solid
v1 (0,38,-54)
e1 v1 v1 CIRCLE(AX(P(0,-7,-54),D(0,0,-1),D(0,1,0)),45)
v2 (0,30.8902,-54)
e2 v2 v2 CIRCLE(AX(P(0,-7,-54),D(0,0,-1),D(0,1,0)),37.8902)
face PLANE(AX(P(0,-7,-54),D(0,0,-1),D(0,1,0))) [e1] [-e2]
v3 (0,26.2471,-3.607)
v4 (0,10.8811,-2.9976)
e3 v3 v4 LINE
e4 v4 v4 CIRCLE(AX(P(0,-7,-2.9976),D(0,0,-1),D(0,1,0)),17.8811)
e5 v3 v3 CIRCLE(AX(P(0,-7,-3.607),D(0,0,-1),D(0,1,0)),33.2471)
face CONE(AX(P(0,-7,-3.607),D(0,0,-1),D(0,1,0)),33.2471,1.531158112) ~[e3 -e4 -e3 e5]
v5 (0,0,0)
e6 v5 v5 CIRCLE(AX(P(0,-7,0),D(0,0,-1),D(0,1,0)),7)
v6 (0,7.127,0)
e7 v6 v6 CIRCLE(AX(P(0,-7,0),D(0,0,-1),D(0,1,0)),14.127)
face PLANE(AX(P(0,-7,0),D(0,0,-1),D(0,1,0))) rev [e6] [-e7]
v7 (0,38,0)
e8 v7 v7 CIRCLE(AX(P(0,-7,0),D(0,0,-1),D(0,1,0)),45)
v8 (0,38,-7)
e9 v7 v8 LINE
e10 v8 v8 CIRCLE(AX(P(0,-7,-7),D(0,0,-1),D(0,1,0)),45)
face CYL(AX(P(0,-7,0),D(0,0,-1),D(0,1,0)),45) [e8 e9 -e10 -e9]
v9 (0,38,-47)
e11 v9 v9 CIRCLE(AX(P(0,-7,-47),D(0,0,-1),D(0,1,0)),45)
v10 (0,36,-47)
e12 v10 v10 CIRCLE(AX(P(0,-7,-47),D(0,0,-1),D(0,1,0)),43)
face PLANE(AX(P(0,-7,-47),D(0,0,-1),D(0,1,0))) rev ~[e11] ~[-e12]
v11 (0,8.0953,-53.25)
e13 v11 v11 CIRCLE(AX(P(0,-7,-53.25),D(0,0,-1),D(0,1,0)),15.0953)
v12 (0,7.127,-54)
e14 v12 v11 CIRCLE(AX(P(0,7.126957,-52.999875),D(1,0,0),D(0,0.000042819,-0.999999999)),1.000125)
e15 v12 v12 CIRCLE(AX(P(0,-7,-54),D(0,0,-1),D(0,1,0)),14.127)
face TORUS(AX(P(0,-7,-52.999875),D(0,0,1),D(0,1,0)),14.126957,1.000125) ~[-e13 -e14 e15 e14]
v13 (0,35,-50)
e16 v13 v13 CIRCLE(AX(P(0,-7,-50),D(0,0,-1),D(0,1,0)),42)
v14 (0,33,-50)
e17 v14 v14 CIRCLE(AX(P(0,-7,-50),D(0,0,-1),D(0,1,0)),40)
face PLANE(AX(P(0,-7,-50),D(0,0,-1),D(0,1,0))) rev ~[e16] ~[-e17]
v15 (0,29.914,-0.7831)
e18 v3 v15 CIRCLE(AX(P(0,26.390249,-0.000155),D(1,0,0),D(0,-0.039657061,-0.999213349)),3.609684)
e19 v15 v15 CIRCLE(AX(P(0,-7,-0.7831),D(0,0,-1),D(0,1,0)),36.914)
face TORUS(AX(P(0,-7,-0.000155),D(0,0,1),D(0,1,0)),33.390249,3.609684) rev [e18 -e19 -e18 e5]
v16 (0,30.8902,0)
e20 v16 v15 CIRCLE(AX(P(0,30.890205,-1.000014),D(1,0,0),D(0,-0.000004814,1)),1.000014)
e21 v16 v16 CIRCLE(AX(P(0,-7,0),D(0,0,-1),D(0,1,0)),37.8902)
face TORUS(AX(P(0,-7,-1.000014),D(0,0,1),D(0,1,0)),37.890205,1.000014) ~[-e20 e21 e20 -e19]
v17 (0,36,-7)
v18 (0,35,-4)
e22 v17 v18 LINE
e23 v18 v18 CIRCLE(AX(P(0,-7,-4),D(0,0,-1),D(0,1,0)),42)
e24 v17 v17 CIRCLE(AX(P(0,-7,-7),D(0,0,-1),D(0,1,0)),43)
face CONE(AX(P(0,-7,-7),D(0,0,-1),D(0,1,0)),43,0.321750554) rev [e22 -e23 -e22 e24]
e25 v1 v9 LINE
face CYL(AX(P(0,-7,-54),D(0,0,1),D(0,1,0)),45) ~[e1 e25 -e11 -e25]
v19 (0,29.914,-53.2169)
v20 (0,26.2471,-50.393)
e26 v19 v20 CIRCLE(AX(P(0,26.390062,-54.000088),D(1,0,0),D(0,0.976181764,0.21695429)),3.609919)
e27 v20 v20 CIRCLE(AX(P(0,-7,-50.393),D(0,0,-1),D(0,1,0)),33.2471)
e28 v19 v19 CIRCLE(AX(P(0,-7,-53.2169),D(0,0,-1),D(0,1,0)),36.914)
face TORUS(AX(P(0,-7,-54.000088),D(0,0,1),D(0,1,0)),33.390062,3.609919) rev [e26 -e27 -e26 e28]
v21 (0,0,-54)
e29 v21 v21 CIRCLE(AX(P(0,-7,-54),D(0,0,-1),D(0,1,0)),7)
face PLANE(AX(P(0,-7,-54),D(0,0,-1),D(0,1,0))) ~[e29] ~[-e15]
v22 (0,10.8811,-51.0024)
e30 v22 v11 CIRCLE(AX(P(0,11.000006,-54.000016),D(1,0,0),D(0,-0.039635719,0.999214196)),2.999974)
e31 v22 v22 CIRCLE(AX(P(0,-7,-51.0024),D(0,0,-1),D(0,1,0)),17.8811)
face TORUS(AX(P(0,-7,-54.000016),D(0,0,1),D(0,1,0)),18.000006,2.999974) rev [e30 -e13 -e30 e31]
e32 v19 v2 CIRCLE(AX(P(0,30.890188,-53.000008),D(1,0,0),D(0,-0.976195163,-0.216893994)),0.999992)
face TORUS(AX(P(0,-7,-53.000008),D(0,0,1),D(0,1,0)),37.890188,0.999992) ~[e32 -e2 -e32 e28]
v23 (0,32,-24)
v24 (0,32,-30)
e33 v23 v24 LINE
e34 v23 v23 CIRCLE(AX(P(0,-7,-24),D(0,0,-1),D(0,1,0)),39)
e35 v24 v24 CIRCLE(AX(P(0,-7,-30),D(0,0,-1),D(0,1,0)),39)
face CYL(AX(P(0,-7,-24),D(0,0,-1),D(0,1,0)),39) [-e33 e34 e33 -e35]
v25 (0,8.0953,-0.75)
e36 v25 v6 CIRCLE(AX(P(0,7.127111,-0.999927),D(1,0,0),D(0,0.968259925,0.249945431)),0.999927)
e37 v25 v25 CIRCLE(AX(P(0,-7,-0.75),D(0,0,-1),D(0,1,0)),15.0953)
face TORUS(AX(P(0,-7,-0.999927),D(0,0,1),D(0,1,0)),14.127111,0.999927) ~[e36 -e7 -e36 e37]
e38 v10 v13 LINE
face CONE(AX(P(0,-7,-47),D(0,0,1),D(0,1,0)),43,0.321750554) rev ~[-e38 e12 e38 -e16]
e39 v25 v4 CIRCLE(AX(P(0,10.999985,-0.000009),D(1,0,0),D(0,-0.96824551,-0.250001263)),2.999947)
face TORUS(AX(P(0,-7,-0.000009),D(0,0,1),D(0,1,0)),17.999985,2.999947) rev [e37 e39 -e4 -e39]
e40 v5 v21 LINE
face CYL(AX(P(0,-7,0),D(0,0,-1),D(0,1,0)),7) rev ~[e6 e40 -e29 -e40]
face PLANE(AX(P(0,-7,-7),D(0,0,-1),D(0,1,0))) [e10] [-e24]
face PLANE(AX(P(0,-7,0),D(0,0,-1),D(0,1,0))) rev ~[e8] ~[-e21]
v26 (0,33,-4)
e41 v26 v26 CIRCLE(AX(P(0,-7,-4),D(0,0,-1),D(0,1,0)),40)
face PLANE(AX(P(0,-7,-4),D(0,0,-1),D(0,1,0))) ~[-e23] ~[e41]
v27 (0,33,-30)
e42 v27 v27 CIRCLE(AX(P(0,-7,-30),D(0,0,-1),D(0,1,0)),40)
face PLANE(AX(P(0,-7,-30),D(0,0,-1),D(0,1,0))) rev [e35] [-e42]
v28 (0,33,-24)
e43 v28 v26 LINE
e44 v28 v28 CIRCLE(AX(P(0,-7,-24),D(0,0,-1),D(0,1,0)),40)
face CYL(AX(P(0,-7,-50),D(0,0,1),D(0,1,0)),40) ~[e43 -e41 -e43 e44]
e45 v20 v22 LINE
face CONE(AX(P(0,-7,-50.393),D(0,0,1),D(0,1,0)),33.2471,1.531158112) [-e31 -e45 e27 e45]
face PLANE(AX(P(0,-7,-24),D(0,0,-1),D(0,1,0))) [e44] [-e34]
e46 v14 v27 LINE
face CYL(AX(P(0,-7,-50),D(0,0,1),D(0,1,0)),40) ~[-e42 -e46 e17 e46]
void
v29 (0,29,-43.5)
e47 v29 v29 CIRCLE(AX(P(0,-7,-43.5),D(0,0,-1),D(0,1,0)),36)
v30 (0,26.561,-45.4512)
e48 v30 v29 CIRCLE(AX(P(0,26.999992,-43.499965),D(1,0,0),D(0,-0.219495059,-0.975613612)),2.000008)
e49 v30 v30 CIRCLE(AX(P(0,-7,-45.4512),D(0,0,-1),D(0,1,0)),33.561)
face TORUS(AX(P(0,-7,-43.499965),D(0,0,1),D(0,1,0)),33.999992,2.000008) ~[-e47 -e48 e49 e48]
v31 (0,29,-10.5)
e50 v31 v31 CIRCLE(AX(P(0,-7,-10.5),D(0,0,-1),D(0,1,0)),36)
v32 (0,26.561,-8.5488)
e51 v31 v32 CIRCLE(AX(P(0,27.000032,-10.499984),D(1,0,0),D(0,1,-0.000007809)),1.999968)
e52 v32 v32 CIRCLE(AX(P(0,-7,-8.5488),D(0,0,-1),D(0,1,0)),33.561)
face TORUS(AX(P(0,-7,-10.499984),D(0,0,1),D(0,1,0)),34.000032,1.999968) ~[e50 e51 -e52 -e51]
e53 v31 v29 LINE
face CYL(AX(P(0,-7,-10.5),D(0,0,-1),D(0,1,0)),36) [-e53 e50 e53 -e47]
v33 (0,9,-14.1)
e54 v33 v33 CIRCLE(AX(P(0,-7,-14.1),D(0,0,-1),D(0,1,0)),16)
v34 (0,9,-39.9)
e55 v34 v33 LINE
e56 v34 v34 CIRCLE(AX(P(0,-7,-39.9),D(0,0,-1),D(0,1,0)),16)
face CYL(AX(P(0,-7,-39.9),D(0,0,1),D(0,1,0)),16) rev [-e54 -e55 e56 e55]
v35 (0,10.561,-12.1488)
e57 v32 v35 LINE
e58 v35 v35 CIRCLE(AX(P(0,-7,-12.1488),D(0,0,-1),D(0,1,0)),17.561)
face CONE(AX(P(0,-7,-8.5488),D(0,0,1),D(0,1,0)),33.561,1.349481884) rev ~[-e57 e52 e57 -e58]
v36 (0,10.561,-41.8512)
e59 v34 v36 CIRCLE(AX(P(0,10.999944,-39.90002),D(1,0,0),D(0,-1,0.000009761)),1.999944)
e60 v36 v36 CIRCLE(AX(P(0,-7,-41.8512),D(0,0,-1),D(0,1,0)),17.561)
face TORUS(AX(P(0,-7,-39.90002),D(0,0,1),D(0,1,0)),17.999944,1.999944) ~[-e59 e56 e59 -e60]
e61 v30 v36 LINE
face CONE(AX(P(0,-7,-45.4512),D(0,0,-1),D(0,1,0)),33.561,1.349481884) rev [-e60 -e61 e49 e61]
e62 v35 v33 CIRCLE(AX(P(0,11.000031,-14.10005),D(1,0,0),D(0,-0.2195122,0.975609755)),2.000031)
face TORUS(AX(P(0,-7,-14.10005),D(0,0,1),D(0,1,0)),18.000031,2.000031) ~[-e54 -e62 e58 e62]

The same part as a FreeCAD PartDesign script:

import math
import FreeCAD as App
import Part
import Sketcher
from FreeCAD import Vector
Q = App.Units.Quantity

doc = App.newDocument("Part")
body = doc.addObject("PartDesign::Body", "Body")

# Sketch on YZ plane
sketch1 = body.newObject("Sketcher::SketchObject", "Sketch")
sketch1.AttachmentSupport = (doc.getObject("YZ_Plane"), [""])
sketch1.MapMode = "FlatFace"
sketch1.addGeometry(Part.LineSegment(Vector(7.1, 0, 0), Vector(0, 0, 0)), False)
sketch1.addGeometry(Part.LineSegment(Vector(0, 0, 0), Vector(0, -54, 0)), False)
sketch1.addGeometry(Part.LineSegment(Vector(0, -54, 0), Vector(7.1, -54, 0)), False)
sketch1.addGeometry(Part.ArcOfCircle(Part.Circle(Vector(7.1, -53, 0), Vector(0, 0, 1), 1), math.radians(-90), math.radians(-14)), False)
sketch1.addGeometry(Part.ArcOfCircle(Part.Circle(Vector(11, -54, 0), Vector(0, 0, 1), 3), math.radians(92), math.radians(166)), False)
sketch1.addGeometry(Part.LineSegment(Vector(10.9, -51, 0), Vector(26.2, -50.4, 0)), False)
sketch1.addGeometry(Part.ArcOfCircle(Part.Circle(Vector(26.4, -54, 0), Vector(0, 0, 1), 3.6), math.radians(13), math.radians(92)), False)
sketch1.addGeometry(Part.ArcOfCircle(Part.Circle(Vector(30.9, -53, 0), Vector(0, 0, 1), 1), math.radians(-167), math.radians(-90)), False)
sketch1.addGeometry(Part.LineSegment(Vector(30.9, -54, 0), Vector(38, -54, 0)), False)
sketch1.addGeometry(Part.LineSegment(Vector(38, -54, 0), Vector(38, -47, 0)), False)
sketch1.addGeometry(Part.LineSegment(Vector(38, -47, 0), Vector(36, -47, 0)), False)
sketch1.addGeometry(Part.LineSegment(Vector(36, -47, 0), Vector(35, -50, 0)), False)
sketch1.addGeometry(Part.LineSegment(Vector(35, -50, 0), Vector(33, -50, 0)), False)
sketch1.addGeometry(Part.LineSegment(Vector(33, -50, 0), Vector(33, -30, 0)), False)
sketch1.addGeometry(Part.LineSegment(Vector(33, -30, 0), Vector(32, -30, 0)), False)
sketch1.addGeometry(Part.LineSegment(Vector(32, -30, 0), Vector(32, -24, 0)), False)
sketch1.addGeometry(Part.LineSegment(Vector(32, -24, 0), Vector(33, -24, 0)), False)
sketch1.addGeometry(Part.LineSegment(Vector(33, -24, 0), Vector(33, -4, 0)), False)
sketch1.addGeometry(Part.LineSegment(Vector(33, -4, 0), Vector(35, -4, 0)), False)
sketch1.addGeometry(Part.LineSegment(Vector(35, -4, 0), Vector(36, -7, 0)), False)
sketch1.addGeometry(Part.LineSegment(Vector(36, -7, 0), Vector(38, -7, 0)), False)
sketch1.addGeometry(Part.LineSegment(Vector(38, -7, 0), Vector(38, 0, 0)), False)
sketch1.addGeometry(Part.LineSegment(Vector(38, 0, 0), Vector(30.9, 0, 0)), False)
sketch1.addGeometry(Part.ArcOfCircle(Part.Circle(Vector(30.9, -1, 0), Vector(0, 0, 1), 1), math.radians(90), math.radians(167)), False)
sketch1.addGeometry(Part.ArcOfCircle(Part.Circle(Vector(26.4, 0, 0), Vector(0, 0, 1), 3.6), math.radians(-92), math.radians(-13)), False)
sketch1.addGeometry(Part.LineSegment(Vector(26.2, -3.6, 0), Vector(10.9, -3, 0)), False)
sketch1.addGeometry(Part.ArcOfCircle(Part.Circle(Vector(11, 0, 0), Vector(0, 0, 1), 3), math.radians(-166), math.radians(-92)), False)
sketch1.addGeometry(Part.ArcOfCircle(Part.Circle(Vector(7.1, -1, 0), Vector(0, 0, 1), 1), math.radians(14), math.radians(90)), False)
sketch1.addGeometry(Part.ArcOfCircle(Part.Circle(Vector(27, -10.5, 0), Vector(0, 0, 1), 2), math.radians(0), math.radians(103)), False)
sketch1.addGeometry(Part.LineSegment(Vector(29, -10.5, 0), Vector(29, -43.5, 0)), False)
sketch1.addGeometry(Part.ArcOfCircle(Part.Circle(Vector(27, -43.5, 0), Vector(0, 0, 1), 2), math.radians(-103), math.radians(0)), False)
sketch1.addGeometry(Part.LineSegment(Vector(26.6, -45.5, 0), Vector(10.6, -41.9, 0)), False)
sketch1.addGeometry(Part.ArcOfCircle(Part.Circle(Vector(11, -39.9, 0), Vector(0, 0, 1), 2), math.radians(180), math.radians(257)), False)
sketch1.addGeometry(Part.LineSegment(Vector(9, -39.9, 0), Vector(9, -14.1, 0)), False)
sketch1.addGeometry(Part.ArcOfCircle(Part.Circle(Vector(11, -14.1, 0), Vector(0, 0, 1), 2), math.radians(103), math.radians(180)), False)
sketch1.addGeometry(Part.LineSegment(Vector(10.6, -12.1, 0), Vector(26.6, -8.5, 0)), False)
sketch1.addGeometry(Part.LineSegment(Vector(-7, 0, 0), Vector(-7, -54, 0)), True)  # axis
sketch1.addConstraint(Sketcher.Constraint("Coincident", 0, 2, 1, 1))
sketch1.addConstraint(Sketcher.Constraint("Coincident", 1, 2, 2, 1))
sketch1.addConstraint(Sketcher.Constraint("Tangent", 2, 2, 3, 1))
sketch1.addConstraint(Sketcher.Constraint("Tangent", 3, 2, 4, 2))
sketch1.addConstraint(Sketcher.Constraint("Tangent", 4, 1, 5, 1))
sketch1.addConstraint(Sketcher.Constraint("Tangent", 5, 2, 6, 2))
sketch1.addConstraint(Sketcher.Constraint("Tangent", 6, 1, 7, 1))
sketch1.addConstraint(Sketcher.Constraint("Tangent", 7, 2, 8, 1))
sketch1.addConstraint(Sketcher.Constraint("Coincident", 8, 2, 9, 1))
sketch1.addConstraint(Sketcher.Constraint("Coincident", 9, 2, 10, 1))
sketch1.addConstraint(Sketcher.Constraint("Coincident", 10, 2, 11, 1))
sketch1.addConstraint(Sketcher.Constraint("Coincident", 11, 2, 12, 1))
sketch1.addConstraint(Sketcher.Constraint("Coincident", 12, 2, 13, 1))
sketch1.addConstraint(Sketcher.Constraint("Coincident", 13, 2, 14, 1))
sketch1.addConstraint(Sketcher.Constraint("Coincident", 14, 2, 15, 1))
sketch1.addConstraint(Sketcher.Constraint("Coincident", 15, 2, 16, 1))
sketch1.addConstraint(Sketcher.Constraint("Coincident", 16, 2, 17, 1))
sketch1.addConstraint(Sketcher.Constraint("Coincident", 17, 2, 18, 1))
sketch1.addConstraint(Sketcher.Constraint("Coincident", 18, 2, 19, 1))
sketch1.addConstraint(Sketcher.Constraint("Coincident", 19, 2, 20, 1))
sketch1.addConstraint(Sketcher.Constraint("Coincident", 20, 2, 21, 1))
sketch1.addConstraint(Sketcher.Constraint("Coincident", 21, 2, 22, 1))
sketch1.addConstraint(Sketcher.Constraint("Tangent", 22, 2, 23, 1))
sketch1.addConstraint(Sketcher.Constraint("Tangent", 23, 2, 24, 2))
sketch1.addConstraint(Sketcher.Constraint("Tangent", 24, 1, 25, 1))
sketch1.addConstraint(Sketcher.Constraint("Tangent", 25, 2, 26, 2))
sketch1.addConstraint(Sketcher.Constraint("Tangent", 26, 1, 27, 1))
sketch1.addConstraint(Sketcher.Constraint("Tangent", 27, 2, 0, 1))
sketch1.addConstraint(Sketcher.Constraint("Tangent", 28, 1, 29, 1))
sketch1.addConstraint(Sketcher.Constraint("Tangent", 29, 2, 30, 2))
sketch1.addConstraint(Sketcher.Constraint("Tangent", 30, 1, 31, 1))
sketch1.addConstraint(Sketcher.Constraint("Tangent", 31, 2, 32, 2))
sketch1.addConstraint(Sketcher.Constraint("Tangent", 32, 1, 33, 1))
sketch1.addConstraint(Sketcher.Constraint("Tangent", 33, 2, 34, 2))
sketch1.addConstraint(Sketcher.Constraint("Tangent", 34, 1, 35, 1))
sketch1.addConstraint(Sketcher.Constraint("Tangent", 35, 2, 28, 2))
sketch1.addConstraint(Sketcher.Constraint("Horizontal", 0))
sketch1.addConstraint(Sketcher.Constraint("Vertical", 1))
sketch1.addConstraint(Sketcher.Constraint("Horizontal", 2))
sketch1.addConstraint(Sketcher.Constraint("Horizontal", 8))
sketch1.addConstraint(Sketcher.Constraint("Vertical", 9))
sketch1.addConstraint(Sketcher.Constraint("Horizontal", 10))
sketch1.addConstraint(Sketcher.Constraint("Horizontal", 12))
sketch1.addConstraint(Sketcher.Constraint("Vertical", 13))
sketch1.addConstraint(Sketcher.Constraint("Horizontal", 14))
sketch1.addConstraint(Sketcher.Constraint("Vertical", 15))
sketch1.addConstraint(Sketcher.Constraint("Horizontal", 16))
sketch1.addConstraint(Sketcher.Constraint("Vertical", 17))
sketch1.addConstraint(Sketcher.Constraint("Horizontal", 18))
sketch1.addConstraint(Sketcher.Constraint("Horizontal", 20))
sketch1.addConstraint(Sketcher.Constraint("Vertical", 21))
sketch1.addConstraint(Sketcher.Constraint("Horizontal", 22))
sketch1.addConstraint(Sketcher.Constraint("Vertical", 29))
sketch1.addConstraint(Sketcher.Constraint("Vertical", 33))
sketch1.addConstraint(Sketcher.Constraint("Vertical", 36))
sketch1.addConstraint(Sketcher.Constraint("Coincident", 0, 2, -1, 1))
sketch1.addConstraint(Sketcher.Constraint("Equal", 3, 7))
sketch1.addConstraint(Sketcher.Constraint("Equal", 7, 23))
sketch1.addConstraint(Sketcher.Constraint("Equal", 6, 24))
sketch1.addConstraint(Sketcher.Constraint("Equal", 4, 26))
sketch1.addConstraint(Sketcher.Constraint("Equal", 23, 27))
sketch1.addConstraint(Sketcher.Constraint("Equal", 28, 30))
sketch1.addConstraint(Sketcher.Constraint("Equal", 30, 32))
sketch1.addConstraint(Sketcher.Constraint("Equal", 32, 34))
sketch1.addConstraint(Sketcher.Constraint("PointOnObject", 24, 3, -1))
sketch1.addConstraint(Sketcher.Constraint("PointOnObject", 26, 3, -1))
sketch1.addConstraint(Sketcher.Constraint("PointOnObject", 21, 2, -1))
sketch1.addConstraint(Sketcher.Constraint("PointOnObject", 36, 1, -1))
sketch1.addConstraint(Sketcher.Constraint("Horizontal", 4, 3, 6, 3))
sketch1.addConstraint(Sketcher.Constraint("Horizontal", 3, 3, 7, 3))
sketch1.addConstraint(Sketcher.Constraint("Horizontal", 6, 3, 1, 2))
sketch1.addConstraint(Sketcher.Constraint("Horizontal", 8, 2, 36, 2))
sketch1.addConstraint(Sketcher.Constraint("Vertical", 7, 3, 23, 3))
sketch1.addConstraint(Sketcher.Constraint("Vertical", 4, 3, 26, 3))
sketch1.addConstraint(Sketcher.Constraint("Vertical", 26, 3, 32, 3))
sketch1.addConstraint(Sketcher.Constraint("Vertical", 13, 2, 16, 2))
sketch1.addConstraint(Sketcher.Constraint("Vertical", 11, 2, 18, 2))
sketch1.addConstraint(Sketcher.Constraint("Vertical", 10, 2, 19, 2))
sketch1.addConstraint(Sketcher.Constraint("Vertical", 9, 2, 20, 2))
sketch1.addConstraint(Sketcher.Constraint("Vertical", 31, 2, 34, 1))
sketch1.addConstraint(Sketcher.Constraint("Equal", 10, 12))
sketch1.addConstraint(Sketcher.Constraint("Equal", 13, 17))
sketch1.addConstraint(Sketcher.Constraint("Equal", 9, 21))
sketch1.addConstraint(Sketcher.Constraint("Equal", 11, 19))
sketch1.addConstraint(Sketcher.Constraint("Radius", 3, 1.0))
sketch1.addConstraint(Sketcher.Constraint("Radius", 4, 3.0))
sketch1.addConstraint(Sketcher.Constraint("Radius", 28, 2.0))
sketch1.addConstraint(Sketcher.Constraint("DistanceX", 10, 2, 10, 1, 2.0))
sketch1.addConstraint(Sketcher.Constraint("DistanceX", 14, 2, 14, 1, 1.0))
sketch1.addConstraint(Sketcher.Constraint("DistanceY", 1, 2, 1, 1, 54.0))
sketch1.addConstraint(Sketcher.Constraint("DistanceY", 9, 1, 9, 2, 7.0))
sketch1.addConstraint(Sketcher.Constraint("DistanceY", 15, 1, 15, 2, 6.0))
sketch1.addConstraint(Sketcher.Constraint("DistanceX", -1, 1, 8, 2, 38.0))
sketch1.addConstraint(Sketcher.Constraint("DistanceX", 36, 1, -1, 1, 7.0))
sketch1.addConstraint(Sketcher.Constraint("DistanceX", 11, 2, 10, 2, 1.0))
sketch1.addConstraint(Sketcher.Constraint("DistanceY", 11, 2, 10, 2, 3.0))
sketch1.addConstraint(Sketcher.Constraint("DistanceX", 30, 3, 13, 2, 6.0))
sketch1.addConstraint(Sketcher.Constraint("DistanceY", 29, 2, 29, 1, 33.0))
sketch1.addConstraint(Sketcher.Constraint("DistanceY", 33, 1, 33, 2, 25.8))
sketch1.addConstraint(Sketcher.Constraint("DistanceX", -1, 1, 4, 3, 11.0))
sketch1.addConstraint(Sketcher.Constraint("DistanceY", 28, 3, -1, 1, 10.5))
sketch1.addConstraint(Sketcher.Constraint("Angle", 5, Q("2.271 deg")))
sketch1.addConstraint(Sketcher.Constraint("Radius", 6, 3.6098))
revolution = body.newObject("PartDesign::Revolution", "Revolution")
revolution.Profile = sketch1
revolution.ReferenceAxis = (sketch1, ["Axis0"])
revolution.Angle = 360

doc.recompute()
